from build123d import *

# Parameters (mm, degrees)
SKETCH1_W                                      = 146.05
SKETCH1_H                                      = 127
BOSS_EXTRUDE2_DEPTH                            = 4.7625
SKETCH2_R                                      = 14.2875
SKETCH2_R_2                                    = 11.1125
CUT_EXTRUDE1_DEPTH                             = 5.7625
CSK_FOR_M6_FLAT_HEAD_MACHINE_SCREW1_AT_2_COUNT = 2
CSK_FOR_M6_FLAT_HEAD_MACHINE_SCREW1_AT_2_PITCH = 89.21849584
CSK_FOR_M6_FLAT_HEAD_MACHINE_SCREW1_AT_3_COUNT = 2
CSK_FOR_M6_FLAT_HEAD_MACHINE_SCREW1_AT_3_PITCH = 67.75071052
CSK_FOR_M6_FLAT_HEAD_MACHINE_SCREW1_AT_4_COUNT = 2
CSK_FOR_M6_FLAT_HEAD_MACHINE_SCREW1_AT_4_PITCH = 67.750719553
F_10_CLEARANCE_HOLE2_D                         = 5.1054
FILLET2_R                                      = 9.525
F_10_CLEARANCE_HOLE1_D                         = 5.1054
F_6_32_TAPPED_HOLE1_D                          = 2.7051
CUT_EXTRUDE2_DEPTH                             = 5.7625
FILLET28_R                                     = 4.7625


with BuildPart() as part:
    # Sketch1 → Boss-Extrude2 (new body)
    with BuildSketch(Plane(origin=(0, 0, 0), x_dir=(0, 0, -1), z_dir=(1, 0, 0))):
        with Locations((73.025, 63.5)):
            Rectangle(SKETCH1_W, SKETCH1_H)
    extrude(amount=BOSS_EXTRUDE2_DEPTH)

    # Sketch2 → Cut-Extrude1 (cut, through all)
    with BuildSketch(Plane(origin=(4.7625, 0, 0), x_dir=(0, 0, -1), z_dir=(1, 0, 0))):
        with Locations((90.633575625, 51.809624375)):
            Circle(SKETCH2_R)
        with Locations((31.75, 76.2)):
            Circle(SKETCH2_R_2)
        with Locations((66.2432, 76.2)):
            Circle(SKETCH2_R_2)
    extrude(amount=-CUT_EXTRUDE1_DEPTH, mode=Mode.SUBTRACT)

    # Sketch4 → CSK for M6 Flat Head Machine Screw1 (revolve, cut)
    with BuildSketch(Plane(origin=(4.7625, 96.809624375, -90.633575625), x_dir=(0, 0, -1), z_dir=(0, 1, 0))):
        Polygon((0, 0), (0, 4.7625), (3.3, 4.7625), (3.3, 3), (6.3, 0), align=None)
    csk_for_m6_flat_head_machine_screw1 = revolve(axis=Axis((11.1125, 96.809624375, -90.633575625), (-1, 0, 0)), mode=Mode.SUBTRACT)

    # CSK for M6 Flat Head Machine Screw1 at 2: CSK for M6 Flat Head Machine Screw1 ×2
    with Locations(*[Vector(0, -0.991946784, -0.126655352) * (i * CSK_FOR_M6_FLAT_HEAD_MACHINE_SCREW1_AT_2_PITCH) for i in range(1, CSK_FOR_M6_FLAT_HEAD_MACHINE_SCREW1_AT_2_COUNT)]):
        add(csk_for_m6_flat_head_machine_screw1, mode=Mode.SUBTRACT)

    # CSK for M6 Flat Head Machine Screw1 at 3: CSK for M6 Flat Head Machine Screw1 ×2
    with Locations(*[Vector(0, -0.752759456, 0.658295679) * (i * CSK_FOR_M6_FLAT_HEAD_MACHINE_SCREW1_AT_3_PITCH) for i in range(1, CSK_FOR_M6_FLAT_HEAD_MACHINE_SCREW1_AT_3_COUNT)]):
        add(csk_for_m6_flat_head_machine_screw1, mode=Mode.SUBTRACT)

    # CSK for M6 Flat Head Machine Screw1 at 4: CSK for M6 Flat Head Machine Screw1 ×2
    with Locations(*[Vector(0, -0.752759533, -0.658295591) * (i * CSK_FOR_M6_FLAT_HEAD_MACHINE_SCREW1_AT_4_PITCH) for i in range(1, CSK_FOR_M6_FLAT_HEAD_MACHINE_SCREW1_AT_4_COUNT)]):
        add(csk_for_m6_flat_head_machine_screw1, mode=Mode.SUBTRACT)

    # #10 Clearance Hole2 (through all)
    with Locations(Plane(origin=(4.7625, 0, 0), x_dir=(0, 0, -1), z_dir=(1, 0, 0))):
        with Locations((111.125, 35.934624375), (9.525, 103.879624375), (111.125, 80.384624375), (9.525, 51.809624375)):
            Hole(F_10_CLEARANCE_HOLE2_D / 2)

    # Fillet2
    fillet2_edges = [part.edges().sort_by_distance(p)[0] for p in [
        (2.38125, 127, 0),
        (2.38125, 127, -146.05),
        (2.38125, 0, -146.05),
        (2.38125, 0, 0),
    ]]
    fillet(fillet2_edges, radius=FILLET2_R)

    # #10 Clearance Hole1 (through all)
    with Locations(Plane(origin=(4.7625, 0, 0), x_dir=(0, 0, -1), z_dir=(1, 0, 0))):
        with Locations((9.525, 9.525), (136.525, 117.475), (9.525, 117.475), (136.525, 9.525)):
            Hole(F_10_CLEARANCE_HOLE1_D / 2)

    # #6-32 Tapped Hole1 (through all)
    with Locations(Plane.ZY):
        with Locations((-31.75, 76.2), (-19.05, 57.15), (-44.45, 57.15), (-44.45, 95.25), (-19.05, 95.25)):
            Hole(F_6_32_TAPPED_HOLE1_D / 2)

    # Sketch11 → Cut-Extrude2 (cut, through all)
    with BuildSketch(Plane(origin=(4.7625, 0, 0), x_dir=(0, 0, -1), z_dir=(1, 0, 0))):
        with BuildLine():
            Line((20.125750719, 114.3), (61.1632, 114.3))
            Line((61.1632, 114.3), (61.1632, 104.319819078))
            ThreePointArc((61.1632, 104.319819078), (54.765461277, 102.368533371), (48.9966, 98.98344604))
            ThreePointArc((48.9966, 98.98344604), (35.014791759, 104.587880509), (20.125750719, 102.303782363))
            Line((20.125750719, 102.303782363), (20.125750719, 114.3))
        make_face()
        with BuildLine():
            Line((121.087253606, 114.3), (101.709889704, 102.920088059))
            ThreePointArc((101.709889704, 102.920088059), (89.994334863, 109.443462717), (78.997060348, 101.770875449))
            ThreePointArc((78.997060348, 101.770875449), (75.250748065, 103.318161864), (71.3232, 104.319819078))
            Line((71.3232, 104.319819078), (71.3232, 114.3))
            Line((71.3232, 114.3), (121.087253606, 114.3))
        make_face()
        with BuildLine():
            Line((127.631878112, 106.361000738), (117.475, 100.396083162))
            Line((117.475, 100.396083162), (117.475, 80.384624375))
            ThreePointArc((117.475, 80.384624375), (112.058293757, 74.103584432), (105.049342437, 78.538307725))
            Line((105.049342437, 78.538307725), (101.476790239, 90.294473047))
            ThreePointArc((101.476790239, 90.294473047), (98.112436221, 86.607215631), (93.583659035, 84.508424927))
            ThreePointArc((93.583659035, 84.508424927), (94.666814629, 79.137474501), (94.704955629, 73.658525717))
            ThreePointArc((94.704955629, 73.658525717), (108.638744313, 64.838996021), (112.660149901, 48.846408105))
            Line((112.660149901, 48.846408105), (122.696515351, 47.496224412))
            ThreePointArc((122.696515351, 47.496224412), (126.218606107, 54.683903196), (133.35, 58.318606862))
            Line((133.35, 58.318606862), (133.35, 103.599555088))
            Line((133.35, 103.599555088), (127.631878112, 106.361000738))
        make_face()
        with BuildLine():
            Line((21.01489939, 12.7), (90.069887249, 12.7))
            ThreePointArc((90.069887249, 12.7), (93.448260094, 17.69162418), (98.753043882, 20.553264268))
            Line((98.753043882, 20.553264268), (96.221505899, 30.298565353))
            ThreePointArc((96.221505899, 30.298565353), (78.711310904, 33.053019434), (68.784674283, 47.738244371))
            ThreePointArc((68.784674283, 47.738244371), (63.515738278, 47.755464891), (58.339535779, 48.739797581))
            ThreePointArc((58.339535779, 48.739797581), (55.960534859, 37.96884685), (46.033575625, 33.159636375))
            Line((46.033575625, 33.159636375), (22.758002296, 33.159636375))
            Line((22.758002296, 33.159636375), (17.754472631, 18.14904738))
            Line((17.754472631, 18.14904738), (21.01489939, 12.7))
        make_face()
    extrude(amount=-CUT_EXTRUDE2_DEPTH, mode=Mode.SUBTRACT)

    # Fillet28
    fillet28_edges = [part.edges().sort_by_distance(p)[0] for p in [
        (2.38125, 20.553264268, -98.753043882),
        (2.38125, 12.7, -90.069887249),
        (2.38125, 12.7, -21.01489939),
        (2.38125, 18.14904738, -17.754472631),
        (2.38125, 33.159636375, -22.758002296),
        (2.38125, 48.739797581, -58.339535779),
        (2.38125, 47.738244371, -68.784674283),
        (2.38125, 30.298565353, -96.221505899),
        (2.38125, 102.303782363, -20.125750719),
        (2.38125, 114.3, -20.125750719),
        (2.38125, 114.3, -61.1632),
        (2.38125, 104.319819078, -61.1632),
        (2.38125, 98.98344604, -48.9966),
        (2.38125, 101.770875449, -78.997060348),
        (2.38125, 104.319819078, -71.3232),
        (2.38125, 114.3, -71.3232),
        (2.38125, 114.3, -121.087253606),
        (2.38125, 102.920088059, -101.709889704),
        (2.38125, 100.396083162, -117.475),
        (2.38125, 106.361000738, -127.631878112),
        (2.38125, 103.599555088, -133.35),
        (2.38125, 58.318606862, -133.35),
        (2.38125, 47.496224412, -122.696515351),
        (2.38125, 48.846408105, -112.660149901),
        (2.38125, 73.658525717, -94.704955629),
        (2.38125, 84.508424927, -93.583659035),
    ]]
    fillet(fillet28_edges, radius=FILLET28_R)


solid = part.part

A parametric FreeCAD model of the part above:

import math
import FreeCAD as App
import Part
import Sketcher
Q = App.Units.Quantity


def edges_at(feature, points):
    """Names of the edges that pass closest to the given points."""
    edges = feature.Shape.Edges
    near = lambda p: min(range(len(edges)), key=lambda i: edges[i].distToShape(Part.Vertex(*p))[0])
    return sorted({f"Edge{near(p) + 1}" for p in points})


def add_polygon(sketch, points):
    """Adds a closed chain of lines whose ends are joined by coincident constraints."""
    first, n = sketch.GeometryCount, len(points)
    for a, b in zip(points, points[1:] + points[:1]):
        sketch.addGeometry(Part.LineSegment(App.Vector(*a, 0), App.Vector(*b, 0)), False)
    for i in range(n):
        sketch.addConstraint(Sketcher.Constraint("Coincident", first + i, 2, first + (i + 1) % n, 1))

doc = App.newDocument("Part")
body = doc.addObject("PartDesign::Body", "Body")

# Sketch on YZ plane
sketch1 = body.newObject("Sketcher::SketchObject", "Sketch")
sketch1.AttachmentSupport = (doc.getObject("YZ_Plane"), [""])
sketch1.MapMode = "FlatFace"
add_polygon(sketch1, [(127, 0), (0, 0), (0, -146.05), (127, -146.05)])  # lines 0-3
sketch1.addConstraint([
    Sketcher.Constraint("Horizontal", 0),
    Sketcher.Constraint("Vertical", 1),
    Sketcher.Constraint("Horizontal", 2),
    Sketcher.Constraint("Vertical", 3),
    Sketcher.Constraint("Coincident", 0, 2, -1, 1),
    Sketcher.Constraint("DistanceX", 0, 2, 0, 1, Q("5 in")),
    Sketcher.Constraint("DistanceY", 1, 2, 1, 1, Q("5.75 in")),
])
pad1 = body.newObject("PartDesign::Pad", "Pad")
pad1.Profile = sketch1
pad1.Length = Q("0.1875 in")

# Sketch on YZ plane
sketch2 = body.newObject("Sketcher::SketchObject", "Sketch001")
sketch2.AttachmentSupport = (doc.getObject("YZ_Plane"), [""])
sketch2.MapMode = "FlatFace"
sketch2.AttachmentOffset = App.Placement(App.Vector(0, 0, 0.1875 * 25.4), App.Rotation())
sketch2.addGeometry([
    Part.Circle(App.Vector(51.809624, -90.633576, 0), App.Vector(0, 0, 1), 14.2875),
    Part.Circle(App.Vector(76.2, -31.75, 0), App.Vector(0, 0, 1), 11.1125),
    Part.Circle(App.Vector(76.2, -66.2432, 0), App.Vector(0, 0, 1), 11.1125),
], False)
sketch2.addConstraint([
    Sketcher.Constraint("Equal", 1, 2),
    Sketcher.Constraint("Vertical", 1, 3, 2, 3),
    Sketcher.Constraint("Diameter", 0, Q("1.125 in")),
    Sketcher.Constraint("Diameter", 1, Q("0.875 in")),
    Sketcher.Constraint("DistanceX", -1, 1, 1, 3, Q("3 in")),
    Sketcher.Constraint("DistanceY", 1, 3, -1, 1, Q("1.25 in")),
    Sketcher.Constraint("DistanceY", 2, 3, -1, 1, Q("2.608 in")),
    Sketcher.Constraint("DistanceX", -1, 1, 0, 3, Q("51.809624 mm")),
    Sketcher.Constraint("DistanceY", 0, 3, -1, 1, Q("90.633576 mm")),
])
pocket1 = body.newObject("PartDesign::Pocket", "Pocket")
pocket1.Profile = sketch2
pocket1.Type = "ThroughAll"

# Sketch on XZ plane
sketch3 = body.newObject("Sketcher::SketchObject", "Sketch002")
sketch3.AttachmentSupport = (doc.getObject("XZ_Plane"), [""])
sketch3.MapMode = "FlatFace"
sketch3.AttachmentOffset = App.Placement(App.Vector(0, 0, -96.809624), App.Rotation())
add_polygon(sketch3, [(0, -90.633576), (4.7625, -90.633576), (4.7625, -96.933576), (1.7625, -93.933576), (0, -93.933576)])  # lines 0-4
sketch3.addGeometry(Part.LineSegment(App.Vector(4.7625, -90.633576, 0), App.Vector(0, -90.633576, 0)), True)  # axis
sketch3.addConstraint([
    Sketcher.Constraint("Horizontal", 0),
    Sketcher.Constraint("Vertical", 1),
    Sketcher.Constraint("Horizontal", 3),
    Sketcher.Constraint("Vertical", 4),
    Sketcher.Constraint("Horizontal", 5),
    Sketcher.Constraint("Coincident", 5, 1, 0, 2),
    Sketcher.Constraint("PointOnObject", 3, 2, -2),
    Sketcher.Constraint("PointOnObject", 5, 2, -2),
    Sketcher.Constraint("Angle", 2, Q("135 deg")),
    Sketcher.Constraint("DistanceX", 0, 1, 0, 2, Q("0.1875 in")),
    Sketcher.Constraint("DistanceX", 3, 2, 3, 1, Q("1.7625 mm")),
    Sketcher.Constraint("DistanceY", 1, 2, 1, 1, Q("6.3 mm")),
    Sketcher.Constraint("DistanceY", 0, 2, -1, 1, Q("90.633576 mm")),
])
groove = body.newObject("PartDesign::Groove", "Groove")
groove.Profile = sketch3
groove.ReferenceAxis = (sketch3, ["Axis0"])
groove.Angle = 360
doc.recompute()

datumline = body.newObject("PartDesign::Line", "DatumLine")
datumline.Placement = App.Placement(App.Vector(0, 0, 0), App.Rotation(App.Vector(0, 0, 1), App.Vector(0, -0.991946784, -0.126655352)))
linearpattern = body.newObject("PartDesign::LinearPattern", "LinearPattern")
linearpattern.Originals = [groove]
linearpattern.Direction = (datumline, [""])
linearpattern.Mode = "offset"
linearpattern.Offset = 89.218496
linearpattern.Occurrences = 2
body.Tip = linearpattern
doc.recompute()

datumline2 = body.newObject("PartDesign::Line", "DatumLine001")
datumline2.Placement = App.Placement(App.Vector(0, 0, 0), App.Rotation(App.Vector(0, 0, 1), App.Vector(0, -0.752759456, 0.658295679)))
linearpattern2 = body.newObject("PartDesign::LinearPattern", "LinearPattern001")
linearpattern2.Originals = [groove]
linearpattern2.Direction = (datumline2, [""])
linearpattern2.Mode = "offset"
linearpattern2.Offset = 67.750711
linearpattern2.Occurrences = 2
body.Tip = linearpattern2
doc.recompute()

datumline3 = body.newObject("PartDesign::Line", "DatumLine002")
datumline3.Placement = App.Placement(App.Vector(0, 0, 0), App.Rotation(App.Vector(0, 0, 1), App.Vector(0, -0.752759533, -0.658295591)))
linearpattern3 = body.newObject("PartDesign::LinearPattern", "LinearPattern002")
linearpattern3.Originals = [groove]
linearpattern3.Direction = (datumline3, [""])
linearpattern3.Mode = "offset"
linearpattern3.Offset = 67.75072
linearpattern3.Occurrences = 2
body.Tip = linearpattern3

# Sketch on YZ plane
sketch4 = body.newObject("Sketcher::SketchObject", "Sketch003")
sketch4.AttachmentSupport = (doc.getObject("YZ_Plane"), [""])
sketch4.MapMode = "FlatFace"
sketch4.AttachmentOffset = App.Placement(App.Vector(0, 0, 0.1875 * 25.4), App.Rotation())
sketch4.addGeometry([
    Part.Circle(App.Vector(35.934624, -111.125, 0), App.Vector(0, 0, 1), 2.5527),
    Part.Circle(App.Vector(103.879624, -9.525, 0), App.Vector(0, 0, 1), 2.5527),
    Part.Circle(App.Vector(80.384624, -111.125, 0), App.Vector(0, 0, 1), 2.5527),
    Part.Circle(App.Vector(51.809624, -9.525, 0), App.Vector(0, 0, 1), 2.5527),
], False)
sketch4.addConstraint([
    Sketcher.Constraint("Equal", 0, 1),
    Sketcher.Constraint("Equal", 1, 2),
    Sketcher.Constraint("Equal", 2, 3),
    Sketcher.Constraint("Horizontal", 0, 3, 2, 3),
    Sketcher.Constraint("Horizontal", 1, 3, 3, 3),
    Sketcher.Constraint("Diameter", 0, Q("0.201 in")),
    Sketcher.Constraint("DistanceY", 0, 3, 1, 3, Q("4 in")),
    Sketcher.Constraint("DistanceX", 0, 3, 2, 3, Q("1.75 in")),
    Sketcher.Constraint("DistanceX", 3, 3, 1, 3, Q("2.05 in")),
    Sketcher.Constraint("DistanceY", 0, 3, -1, 1, Q("4.375 in")),
    Sketcher.Constraint("DistanceX", 0, 3, 1, 3, Q("2.675 in")),
    Sketcher.Constraint("DistanceX", -1, 1, 0, 3, Q("35.934624 mm")),
])
doc.recompute()
hole = body.newObject("PartDesign::Hole", "Hole")
hole.Profile = sketch4
hole.ThreadType = "None"
hole.Diameter = Q("0.201 in")
hole.DepthType = "ThroughAll"
doc.recompute()

fillet = body.newObject("PartDesign::Fillet", "Fillet")
fillet.Base = (hole, edges_at(hole, [
    (2.381, 127, 0),
    (2.381, 127, -146.05),
    (2.381, 0, -146.05),
    (2.381, 0, 0),
]))
fillet.Radius = Q("0.375 in")

# Sketch on YZ plane
sketch5 = body.newObject("Sketcher::SketchObject", "Sketch004")
sketch5.AttachmentSupport = (doc.getObject("YZ_Plane"), [""])
sketch5.MapMode = "FlatFace"
sketch5.AttachmentOffset = App.Placement(App.Vector(0, 0, 0.1875 * 25.4), App.Rotation())
sketch5.addGeometry([
    Part.Circle(App.Vector(9.525, -9.525, 0), App.Vector(0, 0, 1), 2.5527),
    Part.Circle(App.Vector(117.475, -136.525, 0), App.Vector(0, 0, 1), 2.5527),
    Part.Circle(App.Vector(117.475, -9.525, 0), App.Vector(0, 0, 1), 2.5527),
    Part.Circle(App.Vector(9.525, -136.525, 0), App.Vector(0, 0, 1), 2.5527),
], False)
sketch5.addConstraint([
    Sketcher.Constraint("Equal", 0, 1),
    Sketcher.Constraint("Equal", 1, 2),
    Sketcher.Constraint("Equal", 2, 3),
    Sketcher.Constraint("Horizontal", 0, 3, 2, 3),
    Sketcher.Constraint("Horizontal", 1, 3, 3, 3),
    Sketcher.Constraint("Vertical", 1, 3, 2, 3),
    Sketcher.Constraint("Vertical", 0, 3, 3, 3),
    Sketcher.Constraint("Diameter", 0, Q("0.201 in")),
    Sketcher.Constraint("DistanceY", 1, 3, 0, 3, Q("5 in")),
    Sketcher.Constraint("DistanceX", 0, 3, 1, 3, Q("4.25 in")),
    Sketcher.Constraint("DistanceX", -1, 1, 0, 3, Q("0.375 in")),
    Sketcher.Constraint("DistanceY", 0, 3, -1, 1, Q("0.375 in")),
])
doc.recompute()
hole2 = body.newObject("PartDesign::Hole", "Hole001")
hole2.Profile = sketch5
hole2.ThreadType = "None"
hole2.Diameter = Q("0.201 in")
hole2.DepthType = "ThroughAll"

# Sketch on YZ plane
sketch6 = body.newObject("Sketcher::SketchObject", "Sketch005")
sketch6.AttachmentSupport = (doc.getObject("YZ_Plane"), [""])
sketch6.MapMode = "FlatFace"
sketch6.addGeometry([
    Part.Circle(App.Vector(76.2, -31.75, 0), App.Vector(0, 0, 1), 1.35255),  # 0
    Part.Circle(App.Vector(57.15, -19.05, 0), App.Vector(0, 0, 1), 1.35255),  # 1
    Part.Circle(App.Vector(57.15, -44.45, 0), App.Vector(0, 0, 1), 1.35255),  # 2
    Part.Circle(App.Vector(95.25, -44.45, 0), App.Vector(0, 0, 1), 1.35255),  # 3
    Part.Circle(App.Vector(95.25, -19.05, 0), App.Vector(0, 0, 1), 1.35255),  # 4
], False)
sketch6.addConstraint([
    Sketcher.Constraint("Equal", 0, 1),
    Sketcher.Constraint("Equal", 1, 2),
    Sketcher.Constraint("Equal", 2, 3),
    Sketcher.Constraint("Equal", 3, 4),
    Sketcher.Constraint("Horizontal", 2, 3, 3, 3),
    Sketcher.Constraint("Horizontal", 1, 3, 4, 3),
    Sketcher.Constraint("Vertical", 1, 3, 2, 3),
    Sketcher.Constraint("Vertical", 3, 3, 4, 3),
    Sketcher.Constraint("DistanceX", -1, 1, 0, 3, Q("3 in")),
    Sketcher.Constraint("DistanceY", 2, 3, 1, 3, Q("1 in")),
    Sketcher.Constraint("Diameter", 0, Q("0.1065 in")),
    Sketcher.Constraint("DistanceY", 0, 3, 1, 3, Q("0.5 in")),
    Sketcher.Constraint("DistanceX", 2, 3, 3, 3, Q("1.5 in")),
    Sketcher.Constraint("DistanceY", 0, 3, -1, 1, Q("1.25 in")),
    Sketcher.Constraint("DistanceX", -1, 1, 1, 3, Q("2.25 in")),
])
doc.recompute()
hole3 = body.newObject("PartDesign::Hole", "Hole002")
hole3.Profile = sketch6
hole3.ThreadType = "None"
hole3.Diameter = Q("0.1065 in")
hole3.DepthType = "ThroughAll"
hole3.Reversed = True

# Sketch on YZ plane
sketch7 = body.newObject("Sketcher::SketchObject", "Sketch006")
sketch7.AttachmentSupport = (doc.getObject("YZ_Plane"), [""])
sketch7.MapMode = "FlatFace"
sketch7.AttachmentOffset = App.Placement(App.Vector(0, 0, 0.1875 * 25.4), App.Rotation())
sketch7.addGeometry([
    Part.LineSegment(App.Vector(114.3, -61.1632, 0), App.Vector(114.3, -20.125751, 0)),  # 0
    Part.LineSegment(App.Vector(114.3, -20.125751, 0), App.Vector(102.303782, -20.125751, 0)),  # 1
    Part.ArcOfCircle(Part.Circle(App.Vector(76.2, -31.75, 0), App.Vector(0, 0, 1), 28.575), math.radians(-37.124972), math.radians(24.00384)),  # 2
    Part.ArcOfCircle(Part.Circle(App.Vector(76.2, -66.2432, 0), App.Vector(0, 0, 1), 28.575), math.radians(10.240348), math.radians(37.124972)),  # 3
    Part.LineSegment(App.Vector(104.319819, -61.1632, 0), App.Vector(114.3, -61.1632, 0)),  # 4
    Part.LineSegment(App.Vector(102.920088, -101.70989, 0), App.Vector(114.3, -121.087254, 0)),  # 5
    Part.LineSegment(App.Vector(114.3, -121.087254, 0), App.Vector(114.3, -71.3232, 0)),  # 6
    Part.LineSegment(App.Vector(114.3, -71.3232, 0), App.Vector(104.319819, -71.3232, 0)),  # 7
    Part.ArcOfCircle(Part.Circle(App.Vector(76.2, -66.2432, 0), App.Vector(0, 0, 1), 28.575), math.radians(-26.50842), math.radians(-10.240348)),  # 8
    Part.ArcOfCircle(Part.Circle(App.Vector(96.809624, -90.633576, 0), App.Vector(0, 0, 1), 12.65), math.radians(-61.115822), math.radians(66.908929)),  # 9
    Part.LineSegment(App.Vector(106.361001, -127.631878, 0), App.Vector(100.396083, -117.475, 0)),  # 10
    Part.LineSegment(App.Vector(100.396083, -117.475, 0), App.Vector(80.384624, -117.475, 0)),  # 11
    Part.ArcOfCircle(Part.Circle(App.Vector(80.384624, -111.125, 0), App.Vector(0, 0, 1), 6.35), math.radians(106.903373), math.radians(270)),  # 12
    Part.LineSegment(App.Vector(78.538308, -105.049342, 0), App.Vector(90.294473, -101.47679, 0)),  # 13
    Part.ArcOfCircle(Part.Circle(App.Vector(96.809624, -90.633576, 0), App.Vector(0, 0, 1), 12.65), math.radians(-166.513976), math.radians(-120.999576)),  # 14
    Part.ArcOfCircle(Part.Circle(App.Vector(76.2, -66.2432, 0), App.Vector(0, 0, 1), 28.575), math.radians(-95.102657), math.radians(-73.096627)),  # 15
    Part.ArcOfCircle(Part.Circle(App.Vector(51.809624, -90.633576, 0), App.Vector(0, 0, 1), 22.225), math.radians(-97.661951), math.radians(-10.555577)),  # 16
    Part.LineSegment(App.Vector(48.846408, -112.66015, 0), App.Vector(47.496224, -122.696515, 0)),  # 17
    Part.ArcOfCircle(Part.Circle(App.Vector(45.809624, -135.233576, 0), App.Vector(0, 0, 1), 12.65), math.radians(8.563142), math.radians(82.338049)),  # 18
    Part.LineSegment(App.Vector(58.318607, -133.35, 0), App.Vector(103.599555, -133.35, 0)),  # 19
    Part.LineSegment(App.Vector(103.599555, -133.35, 0), App.Vector(106.361001, -127.631878, 0)),  # 20
    Part.LineSegment(App.Vector(12.7, -21.014899, 0), App.Vector(12.7, -90.069887, 0)),  # 21
    Part.ArcOfCircle(Part.Circle(App.Vector(8.309624, -101.933576, 0), App.Vector(0, 0, 1), 12.65), math.radians(14.561878), math.radians(69.692082)),  # 22
    Part.LineSegment(App.Vector(20.553264, -98.753044, 0), App.Vector(30.298565, -96.221506, 0)),  # 23
    Part.ArcOfCircle(Part.Circle(App.Vector(51.809624, -90.633576, 0), App.Vector(0, 0, 1), 22.225), math.radians(100.555577), math.radians(194.561878)),  # 24
    Part.ArcOfCircle(Part.Circle(App.Vector(76.2, -66.2432, 0), App.Vector(0, 0, 1), 28.575), math.radians(163.942991), math.radians(185.102657)),  # 25
    Part.ArcOfCircle(Part.Circle(App.Vector(45.809636, -46.033576, 0), App.Vector(0, 0, 1), 12.65), math.radians(180), math.radians(283.39325)),  # 26
    Part.LineSegment(App.Vector(33.159636, -46.033576, 0), App.Vector(33.159636, -22.758002, 0)),  # 27
    Part.LineSegment(App.Vector(33.159636, -22.758002, 0), App.Vector(18.149047, -17.754473, 0)),  # 28
    Part.LineSegment(App.Vector(18.149047, -17.754473, 0), App.Vector(12.7, -21.014899, 0)),  # 29
], False)
sketch7.addConstraint([
    Sketcher.Constraint("Coincident", 0, 2, 1, 1),
    Sketcher.Constraint("Coincident", 1, 2, 2, 2),
    Sketcher.Constraint("Coincident", 2, 1, 3, 2),
    Sketcher.Constraint("Coincident", 3, 1, 4, 1),
    Sketcher.Constraint("Coincident", 4, 2, 0, 1),
    Sketcher.Constraint("Coincident", 5, 2, 6, 1),
    Sketcher.Constraint("Coincident", 6, 2, 7, 1),
    Sketcher.Constraint("Coincident", 7, 2, 8, 2),
    Sketcher.Constraint("Coincident", 8, 1, 9, 2),
    Sketcher.Constraint("Coincident", 9, 1, 5, 1),
    Sketcher.Constraint("Coincident", 10, 2, 11, 1),
    Sketcher.Constraint("Tangent", 11, 2, 12, 2),
    Sketcher.Constraint("Tangent", 12, 1, 13, 1),
    Sketcher.Constraint("Coincident", 13, 2, 14, 2),
    Sketcher.Constraint("Coincident", 14, 1, 15, 2),
    Sketcher.Constraint("Coincident", 15, 1, 16, 2),
    Sketcher.Constraint("Coincident", 16, 1, 17, 1),
    Sketcher.Constraint("Coincident", 17, 2, 18, 2),
    Sketcher.Constraint("Coincident", 18, 1, 19, 1),
    Sketcher.Constraint("Coincident", 19, 2, 20, 1),
    Sketcher.Constraint("Coincident", 20, 2, 10, 1),
    Sketcher.Constraint("Coincident", 21, 2, 22, 2),
    Sketcher.Constraint("Coincident", 22, 1, 23, 1),
    Sketcher.Constraint("Coincident", 23, 2, 24, 2),
    Sketcher.Constraint("Coincident", 24, 1, 25, 2),
    Sketcher.Constraint("Coincident", 25, 1, 26, 2),
    Sketcher.Constraint("Tangent", 26, 1, 27, 1),
    Sketcher.Constraint("Coincident", 27, 2, 28, 1),
    Sketcher.Constraint("Coincident", 28, 2, 29, 1),
    Sketcher.Constraint("Coincident", 29, 2, 21, 1),
    Sketcher.Constraint("Vertical", 0),
    Sketcher.Constraint("Horizontal", 1),
    Sketcher.Constraint("Horizontal", 4),
    Sketcher.Constraint("Vertical", 6),
    Sketcher.Constraint("Horizontal", 7),
    Sketcher.Constraint("Horizontal", 11),
    Sketcher.Constraint("Horizontal", 19),
    Sketcher.Constraint("Vertical", 21),
    Sketcher.Constraint("Vertical", 27),
    Sketcher.Constraint("Coincident", 8, 3, 3, 3),
    Sketcher.Constraint("Coincident", 14, 3, 9, 3),
    Sketcher.Constraint("Coincident", 15, 3, 3, 3),
    Sketcher.Constraint("Coincident", 24, 3, 16, 3),
    Sketcher.Constraint("Coincident", 25, 3, 3, 3),
    Sketcher.Constraint("Equal", 2, 3),
    Sketcher.Constraint("Equal", 3, 8),
    Sketcher.Constraint("Equal", 9, 14),
    Sketcher.Constraint("Equal", 8, 15),
    Sketcher.Constraint("Equal", 14, 18),
    Sketcher.Constraint("Equal", 18, 22),
    Sketcher.Constraint("Equal", 16, 24),
    Sketcher.Constraint("Equal", 15, 25),
    Sketcher.Constraint("Equal", 22, 26),
    Sketcher.Constraint("Parallel", 5, 10),
    Sketcher.Constraint("Horizontal", 14, 3, 16, 3),
    Sketcher.Constraint("Vertical", 2, 3, 3, 3),
    Sketcher.Constraint("Vertical", 4, 2, 5, 2),
    Sketcher.Constraint("Vertical", 3, 1, 7, 2),
    Sketcher.Constraint("Equal", 20, 29),
    Sketcher.Constraint("Radius", 12, Q("0.25 in")),
    Sketcher.Constraint("DistanceX", -1, 1, 2, 3, Q("3 in")),
    Sketcher.Constraint("Radius", 2, Q("1.125 in")),
    Sketcher.Constraint("Radius", 16, Q("0.875 in")),
    Sketcher.Constraint("DistanceX", -1, 1, 0, 2, Q("4.5 in")),
    Sketcher.Constraint("DistanceX", -1, 1, 21, 2, Q("0.5 in")),
    Sketcher.Constraint("DistanceY", 8, 3, 3, 1, Q("0.2 in")),
    Sketcher.Constraint("Distance", 20, Q("0.25 in")),
    Sketcher.Constraint("DistanceY", 2, 3, -1, 1, Q("1.25 in")),
    Sketcher.Constraint("DistanceY", 18, 1, -1, 1, Q("5.25 in")),
    Sketcher.Constraint("Radius", 9, Q("12.65 mm")),
    Sketcher.Constraint("DistanceY", 3, 3, -1, 1, Q("2.608 in")),
    Sketcher.Constraint("DistanceY", 12, 3, -1, 1, Q("4.375 in")),
    Sketcher.Constraint("DistanceX", 16, 3, 12, 3, Q("1.125 in")),
    Sketcher.Constraint("DistanceX", 11, 2, 11, 1, Q("20.011459 mm")),
    Sketcher.Constraint("DistanceX", 19, 1, 19, 2, Q("45.280948 mm")),
    Sketcher.Constraint("DistanceY", 0, 1, 0, 2, Q("41.037449 mm")),
    Sketcher.Constraint("DistanceX", -1, 1, 20, 2, Q("106.361001 mm")),
    Sketcher.Constraint("DistanceY", 29, 2, -1, 1, Q("21.014899 mm")),
    Sketcher.Constraint("DistanceX", 12, 3, 9, 3, Q("16.425 mm")),
    Sketcher.Constraint("DistanceX", 18, 3, 12, 3, Q("34.575 mm")),
    Sketcher.Constraint("DistanceY", 18, 3, 16, 3, Q("44.6 mm")),
    Sketcher.Constraint("DistanceX", 22, 3, 16, 3, Q("43.5 mm")),
    Sketcher.Constraint("DistanceY", 22, 3, 16, 3, Q("11.3 mm")),
    Sketcher.Constraint("DistanceY", 9, 1, 13, 2, Q("0.233099 mm")),
    Sketcher.Constraint("DistanceX", 14, 1, 14, 3, Q("12.301199 mm")),
    Sketcher.Constraint("DistanceX", 16, 1, 12, 1, Q("29.6919 mm")),
    Sketcher.Constraint("DistanceX", 18, 3, 17, 2, Q("1.6866 mm")),
    Sketcher.Constraint("DistanceX", 16, 1, 18, 1, Q("9.472199 mm")),
    Sketcher.Constraint("DistanceX", 22, 1, 23, 2, Q("9.745301 mm")),
    Sketcher.Constraint("DistanceY", 16, 3, 24, 1, Q("21.848901 mm")),
    Sketcher.Constraint("DistanceY", 24, 1, 26, 3, Q("22.751099 mm")),
    Sketcher.Constraint("DistanceY", 24, 1, 28, 2, Q("51.030202 mm")),
    Sketcher.Constraint("Distance", 28, Q("15.82255 mm")),
    Sketcher.Constraint("DistanceY", 27, 1, 27, 2, Q("23.275573 mm")),
    Sketcher.Constraint("DistanceX", 22, 3, 22, 1, Q("12.24364 mm")),
])
pocket2 = body.newObject("PartDesign::Pocket", "Pocket001")
pocket2.Profile = sketch7
pocket2.Type = "ThroughAll"
doc.recompute()

fillet2 = body.newObject("PartDesign::Fillet", "Fillet001")
fillet2.Base = (pocket2, edges_at(pocket2, [
    (2.381, 20.553, -98.753),
    (2.381, 12.7, -90.07),
    (2.381, 12.7, -21.015),
    (2.381, 18.149, -17.754),
    (2.381, 33.16, -22.758),
    (2.381, 48.74, -58.34),
    (2.381, 47.738, -68.785),
    (2.381, 30.299, -96.222),
    (2.381, 102.304, -20.126),
    (2.381, 114.3, -20.126),
    (2.381, 114.3, -61.163),
    (2.381, 104.32, -61.163),
    (2.381, 98.983, -48.997),
    (2.381, 101.771, -78.997),
    (2.381, 104.32, -71.323),
    (2.381, 114.3, -71.323),
    (2.381, 114.3, -121.087),
    (2.381, 102.92, -101.71),
    (2.381, 100.396, -117.475),
    (2.381, 106.361, -127.632),
    (2.381, 103.6, -133.35),
    (2.381, 58.319, -133.35),
    (2.381, 47.496, -122.697),
    (2.381, 48.846, -112.66),
    (2.381, 73.659, -94.705),
    (2.381, 84.508, -93.584),
]))
fillet2.Radius = Q("0.1875 in")

doc.recompute()
